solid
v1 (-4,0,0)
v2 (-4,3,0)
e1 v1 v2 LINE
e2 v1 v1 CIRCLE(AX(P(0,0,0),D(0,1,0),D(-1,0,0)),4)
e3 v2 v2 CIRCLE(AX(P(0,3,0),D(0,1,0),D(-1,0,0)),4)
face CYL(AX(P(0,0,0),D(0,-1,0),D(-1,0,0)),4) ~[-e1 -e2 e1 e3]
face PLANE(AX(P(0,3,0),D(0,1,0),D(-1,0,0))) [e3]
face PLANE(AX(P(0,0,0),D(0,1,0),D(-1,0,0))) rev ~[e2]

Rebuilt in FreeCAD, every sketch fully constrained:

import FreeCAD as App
import Part
import Sketcher
from FreeCAD import Vector
Q = App.Units.Quantity

doc = App.newDocument("Part")
params = doc.addObject("Spreadsheet::Sheet", "Params")
for row, (alias, value) in enumerate([
    ("sketch1_diameter", "8 mm"),
    ("pad1_length", "3 mm"),
], start=1):
    params.set(f"A{row}", alias)
    params.set(f"B{row}", "=" + value)
    params.setAlias(f"B{row}", alias)

body = doc.addObject("PartDesign::Body", "Body")

# Sketch on XZ plane
sketch1 = doc.addObject("Sketcher::SketchObject", "Sketch")
body.addObject(sketch1)
sketch1.AttachmentSupport = (doc.XZ_Plane, [""])
sketch1.MapMode = "FlatFace"
sketch1.addGeometry(Part.Circle(Vector(0, 0, 0), Vector(0, 0, 1), 4), False)
sketch1.addConstraint([
    Sketcher.Constraint("Coincident", 0, 3, -1, 1),
    Sketcher.Constraint("Diameter", 0, Q("8 mm")),
])
sketch1.setExpression("Constraints[1]", "Params.sketch1_diameter")
pad1 = doc.addObject("PartDesign::Pad", "Pad")
body.addObject(pad1)
pad1.Profile = sketch1
pad1.setExpression("Length", "Params.pad1_length")
pad1.Reversed = True

doc.recompute()
